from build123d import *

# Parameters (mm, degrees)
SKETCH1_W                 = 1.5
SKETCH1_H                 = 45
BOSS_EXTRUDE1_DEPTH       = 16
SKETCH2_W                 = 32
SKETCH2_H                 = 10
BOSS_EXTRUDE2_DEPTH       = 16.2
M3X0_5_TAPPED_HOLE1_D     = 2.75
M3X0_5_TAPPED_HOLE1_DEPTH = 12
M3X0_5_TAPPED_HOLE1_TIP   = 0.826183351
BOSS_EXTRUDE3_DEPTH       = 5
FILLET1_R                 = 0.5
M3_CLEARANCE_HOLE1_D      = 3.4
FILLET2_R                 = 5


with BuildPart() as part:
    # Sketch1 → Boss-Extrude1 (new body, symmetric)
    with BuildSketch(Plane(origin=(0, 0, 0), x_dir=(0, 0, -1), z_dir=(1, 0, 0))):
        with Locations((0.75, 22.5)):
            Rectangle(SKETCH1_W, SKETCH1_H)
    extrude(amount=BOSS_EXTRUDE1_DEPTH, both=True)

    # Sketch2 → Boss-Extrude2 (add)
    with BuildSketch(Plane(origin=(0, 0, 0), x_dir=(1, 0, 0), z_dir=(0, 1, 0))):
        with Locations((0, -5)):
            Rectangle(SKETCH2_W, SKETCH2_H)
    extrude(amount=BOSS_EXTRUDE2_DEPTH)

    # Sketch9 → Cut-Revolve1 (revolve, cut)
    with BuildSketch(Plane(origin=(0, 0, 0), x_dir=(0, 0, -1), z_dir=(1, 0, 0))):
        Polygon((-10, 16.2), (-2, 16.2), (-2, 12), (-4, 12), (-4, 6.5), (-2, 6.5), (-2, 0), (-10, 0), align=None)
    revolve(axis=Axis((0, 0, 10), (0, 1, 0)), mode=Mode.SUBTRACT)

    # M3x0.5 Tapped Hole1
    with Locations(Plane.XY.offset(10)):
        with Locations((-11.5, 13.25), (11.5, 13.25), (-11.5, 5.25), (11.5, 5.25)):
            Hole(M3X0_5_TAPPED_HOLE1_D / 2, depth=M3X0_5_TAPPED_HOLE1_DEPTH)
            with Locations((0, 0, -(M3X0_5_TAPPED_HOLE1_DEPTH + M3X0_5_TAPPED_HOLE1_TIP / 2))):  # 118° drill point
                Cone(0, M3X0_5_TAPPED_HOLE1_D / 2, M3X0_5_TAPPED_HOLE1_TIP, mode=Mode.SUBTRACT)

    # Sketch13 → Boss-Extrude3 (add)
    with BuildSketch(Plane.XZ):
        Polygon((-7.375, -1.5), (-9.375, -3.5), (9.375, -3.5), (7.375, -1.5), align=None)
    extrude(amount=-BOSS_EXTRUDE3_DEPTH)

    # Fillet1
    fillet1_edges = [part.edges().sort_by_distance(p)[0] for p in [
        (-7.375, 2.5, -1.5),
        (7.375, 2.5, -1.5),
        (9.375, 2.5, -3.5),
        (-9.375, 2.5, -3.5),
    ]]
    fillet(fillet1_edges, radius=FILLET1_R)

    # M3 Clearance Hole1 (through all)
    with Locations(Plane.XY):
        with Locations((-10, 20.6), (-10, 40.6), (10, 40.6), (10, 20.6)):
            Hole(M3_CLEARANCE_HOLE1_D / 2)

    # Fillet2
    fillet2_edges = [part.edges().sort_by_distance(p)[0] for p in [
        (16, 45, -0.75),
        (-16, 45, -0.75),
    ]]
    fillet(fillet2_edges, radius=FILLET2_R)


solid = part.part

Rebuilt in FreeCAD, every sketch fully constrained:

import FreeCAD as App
import Part
import Sketcher

V = App.Vector
Q = App.Units.Quantity


def edges_at(feature, points):
    """Names of the edges that pass closest to the given points."""
    edges = feature.Shape.Edges
    near = lambda p: min(range(len(edges)), key=lambda i: edges[i].distToShape(Part.Vertex(*p))[0])
    return sorted({f"Edge{near(p) + 1}" for p in points})

doc = App.newDocument("Part")
params = doc.addObject("Spreadsheet::Sheet", "Params")
for row, (alias, value) in enumerate([
    ("sketch1_width", "45 mm"),
    ("sketch1_height", "1.5 mm"),
    ("pad1_length", "32 mm"),
    ("sketch2_width", "32 mm"),
    ("sketch2_height", "10 mm"),
    ("pad2_length", "16.2 mm"),
    ("sketch3_height", "8 mm"),
    ("sketch3_height2", "2 mm"),
    ("sketch3_width", "16.2 mm"),
    ("sketch3_width2", "6.5 mm"),
    ("sketch3_width3", "5.5 mm"),
    ("groove_angle", "360 deg"),
    ("sketch4_diameter", "2.75 mm"),
    ("hole_diameter", "2.75 mm"),
    ("hole_depth", "12 mm"),
    ("sketch5_width", "18.75 mm"),
    ("pad3_length", "5 mm"),
    ("fillet_radius", "0.5 mm"),
    ("sketch6_diameter", "3.4 mm"),
    ("hole2_diameter", "3.4 mm"),
    ("fillet2_radius", "5 mm"),
], start=1):
    params.set(f"A{row}", alias)
    params.set(f"B{row}", "=" + value)
    params.setAlias(f"B{row}", alias)

body = doc.addObject("PartDesign::Body", "Body")

# Sketch on YZ plane
sketch1 = body.newObject("Sketcher::SketchObject", "Sketch")
sketch1.AttachmentSupport = (doc.getObject("YZ_Plane"), [""])
sketch1.MapMode = "FlatFace"
sketch1.addGeometry([
    Part.LineSegment(V(45, 0, 0), V(0, 0, 0)),
    Part.LineSegment(V(0, 0, 0), V(0, -1.5, 0)),
    Part.LineSegment(V(0, -1.5, 0), V(45, -1.5, 0)),
    Part.LineSegment(V(45, -1.5, 0), V(45, 0, 0)),
], False)
sketch1.addConstraint([
    Sketcher.Constraint("Coincident", 0, 2, 1, 1),
    Sketcher.Constraint("Coincident", 1, 2, 2, 1),
    Sketcher.Constraint("Coincident", 2, 2, 3, 1),
    Sketcher.Constraint("Coincident", 3, 2, 0, 1),
    Sketcher.Constraint("Horizontal", 0),
    Sketcher.Constraint("Vertical", 1),
    Sketcher.Constraint("Horizontal", 2),
    Sketcher.Constraint("Vertical", 3),
    Sketcher.Constraint("Coincident", 0, 2, -1, 1),
    Sketcher.Constraint("DistanceX", 0, 2, 0, 1, Q("45 mm")),
    Sketcher.Constraint("DistanceY", 1, 2, 1, 1, Q("1.5 mm")),
])
sketch1.setExpression("Constraints[9]", "Params.sketch1_width")
sketch1.setExpression("Constraints[10]", "Params.sketch1_height")
pad1 = body.newObject("PartDesign::Pad", "Pad")
pad1.Profile = sketch1
pad1.setExpression("Length", "Params.pad1_length")
pad1.Midplane = True

# Sketch on XZ plane
sketch2 = body.newObject("Sketcher::SketchObject", "Sketch001")
sketch2.AttachmentSupport = (doc.getObject("XZ_Plane"), [""])
sketch2.MapMode = "FlatFace"
sketch2.addGeometry([
    Part.LineSegment(V(-16, 0, 0), V(-16, 10, 0)),
    Part.LineSegment(V(-16, 10, 0), V(16, 10, 0)),
    Part.LineSegment(V(16, 10, 0), V(16, 0, 0)),
    Part.LineSegment(V(16, 0, 0), V(-16, 0, 0)),
], False)
sketch2.addConstraint([
    Sketcher.Constraint("Coincident", 0, 2, 1, 1),
    Sketcher.Constraint("Coincident", 1, 2, 2, 1),
    Sketcher.Constraint("Coincident", 2, 2, 3, 1),
    Sketcher.Constraint("Coincident", 3, 2, 0, 1),
    Sketcher.Constraint("Vertical", 0),
    Sketcher.Constraint("Horizontal", 1),
    Sketcher.Constraint("Vertical", 2),
    Sketcher.Constraint("Horizontal", 3),
    Sketcher.Constraint("Symmetric", 2, 2, 3, 2, -1, 1),
    Sketcher.Constraint("DistanceX", 1, 1, 1, 2, Q("32 mm")),
    Sketcher.Constraint("DistanceY", 0, 1, 0, 2, Q("10 mm")),
])
sketch2.setExpression("Constraints[9]", "Params.sketch2_width")
sketch2.setExpression("Constraints[10]", "Params.sketch2_height")
pad2 = body.newObject("PartDesign::Pad", "Pad001")
pad2.Profile = sketch2
pad2.setExpression("Length", "Params.pad2_length")
pad2.Reversed = True

# Sketch on YZ plane
sketch3 = body.newObject("Sketcher::SketchObject", "Sketch002")
sketch3.AttachmentSupport = (doc.getObject("YZ_Plane"), [""])
sketch3.MapMode = "FlatFace"
sketch3.addGeometry([
    Part.LineSegment(V(16.2, 2, 0), V(16.2, 10, 0)),  # 0
    Part.LineSegment(V(16.2, 10, 0), V(0, 10, 0)),  # 1
    Part.LineSegment(V(0, 10, 0), V(0, 2, 0)),  # 2
    Part.LineSegment(V(0, 2, 0), V(6.5, 2, 0)),  # 3
    Part.LineSegment(V(6.5, 2, 0), V(6.5, 4, 0)),  # 4
    Part.LineSegment(V(6.5, 4, 0), V(12, 4, 0)),  # 5
    Part.LineSegment(V(12, 4, 0), V(12, 2, 0)),  # 6
    Part.LineSegment(V(12, 2, 0), V(16.2, 2, 0)),  # 7
], False)
sketch3.addGeometry(Part.LineSegment(V(0, 10, 0), V(16.2, 10, 0)), True)  # axis
sketch3.addConstraint([
    Sketcher.Constraint("Coincident", 0, 2, 1, 1),
    Sketcher.Constraint("Coincident", 1, 2, 2, 1),
    Sketcher.Constraint("Coincident", 2, 2, 3, 1),
    Sketcher.Constraint("Coincident", 3, 2, 4, 1),
    Sketcher.Constraint("Coincident", 4, 2, 5, 1),
    Sketcher.Constraint("Coincident", 5, 2, 6, 1),
    Sketcher.Constraint("Coincident", 6, 2, 7, 1),
    Sketcher.Constraint("Coincident", 7, 2, 0, 1),
    Sketcher.Constraint("Vertical", 0),
    Sketcher.Constraint("Horizontal", 1),
    Sketcher.Constraint("Vertical", 2),
    Sketcher.Constraint("Horizontal", 3),
    Sketcher.Constraint("Vertical", 4),
    Sketcher.Constraint("Horizontal", 5),
    Sketcher.Constraint("Vertical", 6),
    Sketcher.Constraint("Horizontal", 7),
    Sketcher.Constraint("Horizontal", 8),
    Sketcher.Constraint("Coincident", 8, 1, 1, 2),
    Sketcher.Constraint("PointOnObject", 1, 2, -2),
    Sketcher.Constraint("Horizontal", 3, 2, 6, 2),
    Sketcher.Constraint("Vertical", 7, 2, 8, 2),
    Sketcher.Constraint("DistanceY", 0, 1, 0, 2, Q("8 mm")),
    Sketcher.Constraint("DistanceY", 4, 1, 4, 2, Q("2 mm")),
    Sketcher.Constraint("DistanceX", 1, 2, 1, 1, Q("16.2 mm")),
    Sketcher.Constraint("DistanceX", 3, 1, 3, 2, Q("6.5 mm")),
    Sketcher.Constraint("DistanceX", 5, 1, 5, 2, Q("5.5 mm")),
    Sketcher.Constraint("DistanceY", -1, 1, 0, 2, Q("10 mm")),
])
sketch3.setExpression("Constraints[21]", "Params.sketch3_height")
sketch3.setExpression("Constraints[22]", "Params.sketch3_height2")
sketch3.setExpression("Constraints[23]", "Params.sketch3_width")
sketch3.setExpression("Constraints[24]", "Params.sketch3_width2")
sketch3.setExpression("Constraints[25]", "Params.sketch3_width3")
groove = body.newObject("PartDesign::Groove", "Groove")
groove.Profile = sketch3
groove.ReferenceAxis = (sketch3, ["Axis0"])
groove.setExpression("Angle", "Params.groove_angle")

# Sketch on XY plane
sketch4 = body.newObject("Sketcher::SketchObject", "Sketch003")
sketch4.AttachmentSupport = (doc.getObject("XY_Plane"), [""])
sketch4.MapMode = "FlatFace"
sketch4.AttachmentOffset = App.Placement(V(0, 0, 10), App.Rotation())
sketch4.addGeometry([
    Part.Circle(V(-11.5, 13.2, 0), V(0, 0, 1), 1.4),
    Part.Circle(V(11.5, 13.2, 0), V(0, 0, 1), 1.4),
    Part.Circle(V(-11.5, 5.2, 0), V(0, 0, 1), 1.4),
    Part.Circle(V(11.5, 5.2, 0), V(0, 0, 1), 1.4),
], False)
sketch4.addConstraint([
    Sketcher.Constraint("Equal", 0, 1),
    Sketcher.Constraint("Equal", 1, 2),
    Sketcher.Constraint("Equal", 2, 3),
    Sketcher.Constraint("Symmetric", 0, 3, 1, 3, -2),
    Sketcher.Constraint("Symmetric", 2, 3, 3, 3, -2),
    Sketcher.Constraint("Vertical", 0, 3, 2, 3),
    Sketcher.Constraint("Diameter", 0, Q("2.75 mm")),
    Sketcher.Constraint("DistanceX", 0, 3, 1, 3, Q("23 mm")),
    Sketcher.Constraint("DistanceY", 2, 3, 0, 3, Q("8 mm")),
    Sketcher.Constraint("DistanceY", -1, 1, 0, 3, Q("13.25 mm")),
])
sketch4.setExpression("Constraints[6]", "Params.sketch4_diameter")
doc.recompute()
hole = body.newObject("PartDesign::Hole", "Hole")
hole.Profile = sketch4
hole.ThreadType = "None"
hole.setExpression("Diameter", "Params.hole_diameter")
hole.DepthType = "Dimension"
hole.setExpression("Depth", "Params.hole_depth")
hole.DrillPoint = "Angled"
hole.DrillPointAngle = 118

# Sketch on XZ plane
sketch5 = body.newObject("Sketcher::SketchObject", "Sketch004")
sketch5.AttachmentSupport = (doc.getObject("XZ_Plane"), [""])
sketch5.MapMode = "FlatFace"
sketch5.addGeometry([
    Part.LineSegment(V(-7.4, -1.5, 0), V(-9.4, -3.5, 0)),
    Part.LineSegment(V(-9.4, -3.5, 0), V(9.4, -3.5, 0)),
    Part.LineSegment(V(9.4, -3.5, 0), V(7.4, -1.5, 0)),
    Part.LineSegment(V(7.4, -1.5, 0), V(-7.4, -1.5, 0)),
], False)
sketch5.addConstraint([
    Sketcher.Constraint("Coincident", 0, 2, 1, 1),
    Sketcher.Constraint("Coincident", 1, 2, 2, 1),
    Sketcher.Constraint("Coincident", 2, 2, 3, 1),
    Sketcher.Constraint("Coincident", 3, 2, 0, 1),
    Sketcher.Constraint("Horizontal", 1),
    Sketcher.Constraint("Horizontal", 3),
    Sketcher.Constraint("Perpendicular", 0, 2),
    Sketcher.Constraint("Equal", 0, 2),
    Sketcher.Constraint("DistanceX", 2, 2, 1, 2, Q("2 mm")),
    Sketcher.Constraint("DistanceX", 1, 1, 1, 2, Q("18.75 mm")),
    Sketcher.Constraint("DistanceY", 0, 2, -1, 1, Q("3.5 mm")),
    Sketcher.Constraint("DistanceX", 0, 2, -1, 1, Q("9.375 mm")),
])
sketch5.setExpression("Constraints[9]", "Params.sketch5_width")
pad3 = body.newObject("PartDesign::Pad", "Pad002")
pad3.Profile = sketch5
pad3.setExpression("Length", "Params.pad3_length")
pad3.Reversed = True
doc.recompute()

fillet = body.newObject("PartDesign::Fillet", "Fillet")
fillet.Base = (pad3, edges_at(pad3, [
    (-7.375, 2.5, -1.5),
    (7.375, 2.5, -1.5),
    (9.375, 2.5, -3.5),
    (-9.375, 2.5, -3.5),
]))
fillet.setExpression("Radius", "Params.fillet_radius")

# Sketch on XY plane
sketch6 = body.newObject("Sketcher::SketchObject", "Sketch005")
sketch6.AttachmentSupport = (doc.getObject("XY_Plane"), [""])
sketch6.MapMode = "FlatFace"
sketch6.addGeometry([
    Part.Circle(V(-10, 20.6, 0), V(0, 0, 1), 1.7),
    Part.Circle(V(-10, 40.6, 0), V(0, 0, 1), 1.7),
    Part.Circle(V(10, 40.6, 0), V(0, 0, 1), 1.7),
    Part.Circle(V(10, 20.6, 0), V(0, 0, 1), 1.7),
], False)
sketch6.addConstraint([
    Sketcher.Constraint("Equal", 0, 1),
    Sketcher.Constraint("Equal", 1, 2),
    Sketcher.Constraint("Equal", 2, 3),
    Sketcher.Constraint("Symmetric", 1, 3, 2, 3, -2),
    Sketcher.Constraint("Symmetric", 0, 3, 3, 3, -2),
    Sketcher.Constraint("Vertical", 0, 3, 1, 3),
    Sketcher.Constraint("Diameter", 0, Q("3.4 mm")),
    Sketcher.Constraint("DistanceX", 0, 3, -1, 1, Q("10 mm")),
    Sketcher.Constraint("DistanceY", 0, 3, 1, 3, Q("20 mm")),
    Sketcher.Constraint("DistanceY", -1, 1, 0, 3, Q("20.6 mm")),
])
sketch6.setExpression("Constraints[6]", "Params.sketch6_diameter")
doc.recompute()
hole2 = body.newObject("PartDesign::Hole", "Hole001")
hole2.Profile = sketch6
hole2.ThreadType = "None"
hole2.setExpression("Diameter", "Params.hole2_diameter")
hole2.DepthType = "ThroughAll"
doc.recompute()

fillet2 = body.newObject("PartDesign::Fillet", "Fillet001")
fillet2.Base = (hole2, edges_at(hole2, [(16, 45, -0.75), (-16, 45, -0.75)]))
fillet2.setExpression("Radius", "Params.fillet2_radius")

doc.recompute()
